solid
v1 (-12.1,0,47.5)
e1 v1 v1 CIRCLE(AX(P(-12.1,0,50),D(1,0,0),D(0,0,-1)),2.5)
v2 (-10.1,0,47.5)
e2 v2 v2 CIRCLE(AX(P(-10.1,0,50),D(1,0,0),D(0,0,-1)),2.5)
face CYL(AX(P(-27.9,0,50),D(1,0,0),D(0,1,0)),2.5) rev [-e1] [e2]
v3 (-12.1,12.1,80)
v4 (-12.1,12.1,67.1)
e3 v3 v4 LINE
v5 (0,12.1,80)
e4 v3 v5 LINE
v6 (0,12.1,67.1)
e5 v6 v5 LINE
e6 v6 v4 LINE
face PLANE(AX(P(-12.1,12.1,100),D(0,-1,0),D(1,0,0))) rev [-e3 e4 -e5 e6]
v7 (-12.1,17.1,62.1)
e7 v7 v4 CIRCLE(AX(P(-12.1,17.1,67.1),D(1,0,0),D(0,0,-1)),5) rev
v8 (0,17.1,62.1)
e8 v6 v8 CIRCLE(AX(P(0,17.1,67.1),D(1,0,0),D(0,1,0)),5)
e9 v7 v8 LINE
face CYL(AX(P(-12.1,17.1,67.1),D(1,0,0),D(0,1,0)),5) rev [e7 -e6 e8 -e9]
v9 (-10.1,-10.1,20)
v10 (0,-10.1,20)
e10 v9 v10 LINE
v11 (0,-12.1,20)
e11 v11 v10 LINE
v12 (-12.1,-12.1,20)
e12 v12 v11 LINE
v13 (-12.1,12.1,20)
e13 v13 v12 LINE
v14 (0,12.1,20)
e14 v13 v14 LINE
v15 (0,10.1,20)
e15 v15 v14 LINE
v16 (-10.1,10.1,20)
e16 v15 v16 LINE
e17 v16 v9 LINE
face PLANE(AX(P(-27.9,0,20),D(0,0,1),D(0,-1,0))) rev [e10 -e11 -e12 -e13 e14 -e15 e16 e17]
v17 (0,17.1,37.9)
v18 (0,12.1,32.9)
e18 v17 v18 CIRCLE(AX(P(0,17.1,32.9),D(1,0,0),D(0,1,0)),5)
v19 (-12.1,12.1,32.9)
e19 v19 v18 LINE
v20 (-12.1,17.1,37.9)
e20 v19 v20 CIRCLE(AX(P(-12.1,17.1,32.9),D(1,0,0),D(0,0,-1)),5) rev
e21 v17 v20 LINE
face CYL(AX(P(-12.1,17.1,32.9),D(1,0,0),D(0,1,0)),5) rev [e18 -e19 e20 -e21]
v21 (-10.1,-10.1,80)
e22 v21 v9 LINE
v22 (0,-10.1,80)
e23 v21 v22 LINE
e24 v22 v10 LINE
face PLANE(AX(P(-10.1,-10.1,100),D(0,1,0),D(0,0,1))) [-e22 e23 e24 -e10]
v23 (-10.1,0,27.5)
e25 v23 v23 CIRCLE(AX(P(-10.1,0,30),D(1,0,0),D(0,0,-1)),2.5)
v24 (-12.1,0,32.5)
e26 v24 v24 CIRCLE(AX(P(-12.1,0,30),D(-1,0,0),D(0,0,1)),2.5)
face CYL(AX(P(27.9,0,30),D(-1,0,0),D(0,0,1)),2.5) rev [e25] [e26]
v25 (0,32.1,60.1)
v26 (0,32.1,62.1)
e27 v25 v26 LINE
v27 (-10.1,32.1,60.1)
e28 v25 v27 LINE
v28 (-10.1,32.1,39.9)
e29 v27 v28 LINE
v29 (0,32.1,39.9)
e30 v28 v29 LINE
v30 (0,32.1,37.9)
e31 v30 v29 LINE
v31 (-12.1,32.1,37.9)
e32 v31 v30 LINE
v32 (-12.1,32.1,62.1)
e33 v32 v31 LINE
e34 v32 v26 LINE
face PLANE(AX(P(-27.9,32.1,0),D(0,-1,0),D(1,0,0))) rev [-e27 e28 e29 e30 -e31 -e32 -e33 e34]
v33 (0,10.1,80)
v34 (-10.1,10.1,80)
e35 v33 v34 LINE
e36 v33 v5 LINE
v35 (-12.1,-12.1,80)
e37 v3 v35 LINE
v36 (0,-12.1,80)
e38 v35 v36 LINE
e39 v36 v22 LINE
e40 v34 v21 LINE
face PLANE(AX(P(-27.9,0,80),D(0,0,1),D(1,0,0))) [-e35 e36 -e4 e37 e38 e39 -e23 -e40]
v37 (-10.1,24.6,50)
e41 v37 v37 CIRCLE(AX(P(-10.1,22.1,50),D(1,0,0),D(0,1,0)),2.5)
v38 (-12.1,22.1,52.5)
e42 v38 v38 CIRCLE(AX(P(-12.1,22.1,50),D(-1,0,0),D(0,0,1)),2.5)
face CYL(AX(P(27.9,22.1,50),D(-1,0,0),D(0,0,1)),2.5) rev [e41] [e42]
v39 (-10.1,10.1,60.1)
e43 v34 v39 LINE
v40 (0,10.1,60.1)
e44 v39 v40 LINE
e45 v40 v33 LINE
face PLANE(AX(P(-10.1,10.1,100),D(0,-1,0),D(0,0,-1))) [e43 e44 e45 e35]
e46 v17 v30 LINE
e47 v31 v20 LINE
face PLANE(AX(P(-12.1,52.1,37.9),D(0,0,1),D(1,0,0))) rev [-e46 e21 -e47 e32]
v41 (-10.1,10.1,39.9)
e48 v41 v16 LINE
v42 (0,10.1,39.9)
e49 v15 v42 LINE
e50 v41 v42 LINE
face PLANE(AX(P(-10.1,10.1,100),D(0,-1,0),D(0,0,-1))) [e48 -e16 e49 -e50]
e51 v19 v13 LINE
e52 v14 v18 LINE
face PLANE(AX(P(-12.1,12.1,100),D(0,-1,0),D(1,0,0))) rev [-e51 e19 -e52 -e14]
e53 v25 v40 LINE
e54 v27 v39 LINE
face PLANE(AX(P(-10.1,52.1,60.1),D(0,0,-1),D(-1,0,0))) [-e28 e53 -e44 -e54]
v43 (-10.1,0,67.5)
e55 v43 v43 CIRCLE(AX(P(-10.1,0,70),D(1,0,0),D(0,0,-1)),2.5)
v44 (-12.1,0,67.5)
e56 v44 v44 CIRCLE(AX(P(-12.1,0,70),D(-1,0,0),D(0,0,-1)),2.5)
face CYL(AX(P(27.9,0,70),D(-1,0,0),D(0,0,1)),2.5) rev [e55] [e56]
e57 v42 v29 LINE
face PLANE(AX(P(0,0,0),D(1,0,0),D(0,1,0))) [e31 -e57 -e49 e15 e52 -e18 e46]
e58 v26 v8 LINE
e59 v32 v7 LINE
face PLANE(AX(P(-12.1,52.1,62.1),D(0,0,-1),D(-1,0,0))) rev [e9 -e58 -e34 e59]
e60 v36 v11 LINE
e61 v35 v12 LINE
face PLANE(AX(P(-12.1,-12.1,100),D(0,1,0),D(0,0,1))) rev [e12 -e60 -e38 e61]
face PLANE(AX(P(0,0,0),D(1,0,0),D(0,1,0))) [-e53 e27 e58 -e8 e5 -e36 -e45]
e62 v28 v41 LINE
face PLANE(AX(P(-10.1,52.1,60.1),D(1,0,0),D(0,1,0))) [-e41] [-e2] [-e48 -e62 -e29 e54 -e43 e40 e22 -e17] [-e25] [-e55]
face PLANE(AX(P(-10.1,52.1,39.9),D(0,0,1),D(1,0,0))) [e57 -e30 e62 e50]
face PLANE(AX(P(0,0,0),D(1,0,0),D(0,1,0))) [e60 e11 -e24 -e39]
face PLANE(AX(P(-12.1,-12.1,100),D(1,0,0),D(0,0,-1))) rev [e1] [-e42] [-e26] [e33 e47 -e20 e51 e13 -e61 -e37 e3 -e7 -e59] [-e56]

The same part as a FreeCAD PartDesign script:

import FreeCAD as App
import Part
import Sketcher
from FreeCAD import Vector
Q = App.Units.Quantity


def edges_at(feature, points):
    """Names of the edges that pass closest to the given points."""
    edges = feature.Shape.Edges
    near = lambda p: min(range(len(edges)), key=lambda i: edges[i].distToShape(Part.Vertex(*p))[0])
    return sorted({f"Edge{near(p) + 1}" for p in points})


def add_polygon(sketch, points):
    """Adds a closed chain of lines whose ends are joined by coincident constraints."""
    first, n = sketch.GeometryCount, len(points)
    for a, b in zip(points, points[1:] + points[:1]):
        sketch.addGeometry(Part.LineSegment(App.Vector(*a, 0), App.Vector(*b, 0)), False)
    for i in range(n):
        sketch.addConstraint(Sketcher.Constraint("Coincident", first + i, 2, first + (i + 1) % n, 1))

doc = App.newDocument("Part")
params = doc.addObject("Spreadsheet::Sheet", "Params")
for row, (alias, value) in enumerate([
    ("sketch1_width", "24.2 mm"),
    ("sketch1_width2", "20.2 mm"),
    ("pad1_length", "100 mm"),
    ("sketch2_width", "24.2 mm"),
    ("sketch2_width2", "20.2 mm"),
    ("pad2_length", "40 mm"),
    ("sketch3_diameter", "5 mm"),
    ("pocket1_length", "40 mm"),
    ("sketch4_diameter", "5 mm"),
    ("pocket2_length", "40 mm"),
    ("sketch5_diameter", "5 mm"),
    ("sketch5_height", "20 mm"),
    ("sketch5_width", "24.2 mm"),
    ("pocket3_length", "40 mm"),
    ("sketch6_diameter", "5 mm"),
    ("sketch6_width", "20 mm"),
    ("sketch6_height", "24.2 mm"),
    ("pocket4_length", "40 mm"),
    ("pocket5_length", "12.1 mm"),
    ("sketch8_width", "2 mm"),
    ("sketch8_height", "20.2 mm"),
    ("pocket6_length", "10 mm"),
    ("sketch9_width", "2 mm"),
    ("sketch9_height", "20.2 mm"),
    ("pocket7_length", "0.1 mm"),
    ("fillet_radius", "5 mm"),
    ("fillet2_radius", "5 mm"),
], start=1):
    params.set(f"A{row}", alias)
    params.set(f"B{row}", "=" + value)
    params.setAlias(f"B{row}", alias)

body = doc.addObject("PartDesign::Body", "Body")

sketch1 = doc.addObject("Sketcher::SketchObject", "Sketch")
body.addObject(sketch1)
sketch1.AttachmentSupport = (doc.XY_Plane, [""])
sketch1.MapMode = "FlatFace"
add_polygon(sketch1, [(-12, 12), (-12, -12), (12, -12), (12, 12)])
add_polygon(sketch1, [(10, -10), (-10, -10), (-10, 10), (10, 10)])
sketch1.addConstraint([
    Sketcher.Constraint("Vertical", 0),
    Sketcher.Constraint("Horizontal", 1),
    Sketcher.Constraint("Vertical", 2),
    Sketcher.Constraint("Horizontal", 3),
    Sketcher.Constraint("Horizontal", 4),
    Sketcher.Constraint("Vertical", 5),
    Sketcher.Constraint("Horizontal", 6),
    Sketcher.Constraint("Vertical", 7),
    Sketcher.Constraint("Symmetric", 0, 2, 2, 2, -1, 1),
    Sketcher.Constraint("Symmetric", 4, 2, 6, 2, -1, 1),
    Sketcher.Constraint("Equal", 3, 0),
    Sketcher.Constraint("Equal", 6, 5),
    Sketcher.Constraint("DistanceX", 1, 1, 1, 2, Q("24.2 mm")),
    Sketcher.Constraint("DistanceX", 4, 2, 4, 1, Q("20.2 mm")),
])
sketch1.setExpression("Constraints[20]", "Params.sketch1_width")
sketch1.setExpression("Constraints[21]", "Params.sketch1_width2")
pad1 = doc.addObject("PartDesign::Pad", "Pad")
body.addObject(pad1)
pad1.Profile = sketch1
pad1.setExpression("Length", "Params.pad1_length")

sketch2 = doc.addObject("Sketcher::SketchObject", "Sketch001")
body.addObject(sketch2)
sketch2.AttachmentSupport = (doc.XZ_Plane, [""])
sketch2.MapMode = "FlatFace"
sketch2.AttachmentOffset = App.Placement(Vector(0, 0, -12.1), App.Rotation())
add_polygon(sketch2, [(-12, 38), (-12, 62), (12, 62), (12, 38)])
add_polygon(sketch2, [(10, 60), (-10, 60), (-10, 40), (10, 40)])
sketch2.addConstraint([
    Sketcher.Constraint("Vertical", 0),
    Sketcher.Constraint("Horizontal", 1),
    Sketcher.Constraint("Vertical", 2),
    Sketcher.Constraint("Horizontal", 3),
    Sketcher.Constraint("Horizontal", 4),
    Sketcher.Constraint("Vertical", 5),
    Sketcher.Constraint("Horizontal", 6),
    Sketcher.Constraint("Vertical", 7),
    Sketcher.Constraint("Equal", 3, 0),
    Sketcher.Constraint("Equal", 6, 5),
    Sketcher.Constraint("DistanceX", 1, 1, 1, 2, Q("24.2 mm")),
    Sketcher.Constraint("DistanceX", 4, 2, 4, 1, Q("20.2 mm")),
    Sketcher.Constraint("DistanceX", 0, 2, 4, 2, Q("2 mm")),
    Sketcher.Constraint("DistanceY", 4, 2, 0, 2, Q("2 mm")),
    Sketcher.Constraint("DistanceX", 0, 2, -1, 1, Q("12.1 mm")),
    Sketcher.Constraint("DistanceY", -1, 1, 0, 2, Q("62.1 mm")),
])
sketch2.setExpression("Constraints[18]", "Params.sketch2_width")
sketch2.setExpression("Constraints[19]", "Params.sketch2_width2")
pad2 = doc.addObject("PartDesign::Pad", "Pad001")
body.addObject(pad2)
pad2.Profile = sketch2
pad2.setExpression("Length", "Params.pad2_length")
pad2.Reversed = True

sketch3 = doc.addObject("Sketcher::SketchObject", "Sketch002")
body.addObject(sketch3)
sketch3.AttachmentSupport = (doc.YZ_Plane, [""])
sketch3.MapMode = "FlatFace"
sketch3.AttachmentOffset = App.Placement(Vector(0, 0, -12.1), App.Rotation())
sketch3.addGeometry([
    Part.Circle(Vector(0, 10, 0), Vector(0, 0, 1), 2.5),
    Part.Circle(Vector(0, 30, 0), Vector(0, 0, 1), 2.5),
    Part.Circle(Vector(0, 90, 0), Vector(0, 0, 1), 2.5),
    Part.Circle(Vector(0, 70, 0), Vector(0, 0, 1), 2.5),
    Part.Circle(Vector(42.1, 50, 0), Vector(0, 0, 1), 2.5),
    Part.Circle(Vector(22.1, 50, 0), Vector(0, 0, 1), 2.5),
], False)
sketch3.addConstraint([
    Sketcher.Constraint("Equal", 0, 1),
    Sketcher.Constraint("Equal", 1, 2),
    Sketcher.Constraint("Equal", 2, 3),
    Sketcher.Constraint("Equal", 3, 4),
    Sketcher.Constraint("Equal", 4, 5),
    Sketcher.Constraint("PointOnObject", 0, 3, -2),
    Sketcher.Constraint("PointOnObject", 1, 3, -2),
    Sketcher.Constraint("PointOnObject", 2, 3, -2),
    Sketcher.Constraint("PointOnObject", 3, 3, -2),
    Sketcher.Constraint("Horizontal", 4, 3, 5, 3),
    Sketcher.Constraint("Diameter", 0, Q("5 mm")),
    Sketcher.Constraint("DistanceY", -1, 1, 0, 3, Q("10 mm")),
    Sketcher.Constraint("DistanceY", -1, 1, 1, 3, Q("30 mm")),
    Sketcher.Constraint("DistanceY", -1, 1, 2, 3, Q("90 mm")),
    Sketcher.Constraint("DistanceY", -1, 1, 3, 3, Q("70 mm")),
    Sketcher.Constraint("DistanceY", -1, 1, 4, 3, Q("50 mm")),
    Sketcher.Constraint("DistanceX", 5, 3, 4, 3, Q("20 mm")),
    Sketcher.Constraint("DistanceX", -1, 1, 4, 3, Q("42.1 mm")),
])
sketch3.setExpression("Constraints[10]", "Params.sketch3_diameter")
pocket1 = doc.addObject("PartDesign::Pocket", "Pocket")
body.addObject(pocket1)
pocket1.Profile = sketch3
pocket1.setExpression("Length", "Params.pocket1_length")
pocket1.Reversed = True

sketch4 = doc.addObject("Sketcher::SketchObject", "Sketch003")
body.addObject(sketch4)
sketch4.AttachmentSupport = (doc.YZ_Plane, [""])
sketch4.MapMode = "FlatFace"
sketch4.AttachmentOffset = App.Placement(Vector(0, 0, 12.1), App.Rotation())
sketch4.addGeometry(Part.Circle(Vector(0, 50, 0), Vector(0, 0, 1), 2.5), False)
sketch4.addConstraint([
    Sketcher.Constraint("PointOnObject", 0, 3, -2),
    Sketcher.Constraint("Diameter", 0, Q("5 mm")),
    Sketcher.Constraint("DistanceY", -1, 1, 0, 3, Q("50 mm")),
])
sketch4.setExpression("Constraints[1]", "Params.sketch4_diameter")
pocket2 = doc.addObject("PartDesign::Pocket", "Pocket001")
body.addObject(pocket2)
pocket2.Profile = sketch4
pocket2.setExpression("Length", "Params.pocket2_length")

sketch5 = doc.addObject("Sketcher::SketchObject", "Sketch004")
body.addObject(sketch5)
sketch5.AttachmentSupport = (doc.YZ_Plane, [""])
sketch5.MapMode = "FlatFace"
sketch5.AttachmentOffset = App.Placement(Vector(0, 0, -27.9), App.Rotation())
add_polygon(sketch5, [(12.1, 20), (-12.1, 20), (-12.1, 0), (12.1, 0)])
sketch5.addGeometry(Part.Circle(Vector(0, 10, 0), Vector(0, 0, 1), 2.5), False)
add_polygon(sketch5, [(12.1, 100), (-12.1, 100), (-12.1, 80), (12.1, 80)])
sketch5.addGeometry(Part.Circle(Vector(0, 90, 0), Vector(0, 0, 1), 2.5), False)
sketch5.addConstraint([
    Sketcher.Constraint("Horizontal", 0),
    Sketcher.Constraint("Vertical", 1),
    Sketcher.Constraint("Horizontal", 2),
    Sketcher.Constraint("Vertical", 3),
    Sketcher.Constraint("Horizontal", 5),
    Sketcher.Constraint("Vertical", 6),
    Sketcher.Constraint("Horizontal", 7),
    Sketcher.Constraint("Vertical", 8),
    Sketcher.Constraint("Equal", 4, 9),
    Sketcher.Constraint("Symmetric", 1, 2, 2, 2, -1, 1),
    Sketcher.Constraint("PointOnObject", 4, 3, -2),
    Sketcher.Constraint("PointOnObject", 9, 3, -2),
    Sketcher.Constraint("Vertical", 1, 2, 5, 2),
    Sketcher.Constraint("Vertical", 3, 2, 7, 2),
    Sketcher.Constraint("Equal", 3, 6),
    Sketcher.Constraint("Diameter", 4, Q("5 mm")),
    Sketcher.Constraint("DistanceY", 1, 2, 1, 1, Q("20 mm")),
    Sketcher.Constraint("DistanceX", 0, 2, 0, 1, Q("24.2 mm")),
    Sketcher.Constraint("DistanceY", -1, 1, 4, 3, Q("10 mm")),
    Sketcher.Constraint("DistanceY", -1, 1, 9, 3, Q("90 mm")),
    Sketcher.Constraint("DistanceY", -1, 1, 5, 2, Q("100 mm")),
])
sketch5.setExpression("Constraints[23]", "Params.sketch5_diameter")
sketch5.setExpression("Constraints[24]", "Params.sketch5_height")
sketch5.setExpression("Constraints[25]", "Params.sketch5_width")
pocket3 = doc.addObject("PartDesign::Pocket", "Pocket002")
body.addObject(pocket3)
pocket3.Profile = sketch5
pocket3.setExpression("Length", "Params.pocket3_length")
pocket3.Reversed = True

sketch6 = doc.addObject("Sketcher::SketchObject", "Sketch005")
body.addObject(sketch6)
sketch6.AttachmentSupport = (doc.YZ_Plane, [""])
sketch6.MapMode = "FlatFace"
sketch6.AttachmentOffset = App.Placement(Vector(0, 0, -27.9), App.Rotation())
add_polygon(sketch6, [(52.1, 62.1), (32.1, 62.1), (32.1, 37.9), (52.1, 37.9)])
sketch6.addGeometry(Part.Circle(Vector(42.1, 50, 0), Vector(0, 0, 1), 2.5), False)
sketch6.addConstraint([
    Sketcher.Constraint("Horizontal", 0),
    Sketcher.Constraint("Vertical", 1),
    Sketcher.Constraint("Horizontal", 2),
    Sketcher.Constraint("Vertical", 3),
    Sketcher.Constraint("Diameter", 4, Q("5 mm")),
    Sketcher.Constraint("DistanceX", 0, 2, 0, 1, Q("20 mm")),
    Sketcher.Constraint("DistanceY", 1, 2, 1, 1, Q("24.2 mm")),
    Sketcher.Constraint("DistanceY", -1, 1, 4, 3, Q("50 mm")),
    Sketcher.Constraint("DistanceX", 0, 2, 4, 3, Q("10 mm")),
    Sketcher.Constraint("DistanceX", -1, 1, 4, 3, Q("42.1 mm")),
    Sketcher.Constraint("DistanceY", -1, 1, 0, 2, Q("62.1 mm")),
])
sketch6.setExpression("Constraints[8]", "Params.sketch6_diameter")
sketch6.setExpression("Constraints[9]", "Params.sketch6_width")
sketch6.setExpression("Constraints[10]", "Params.sketch6_height")
pocket4 = doc.addObject("PartDesign::Pocket", "Pocket003")
body.addObject(pocket4)
pocket4.Profile = sketch6
pocket4.setExpression("Length", "Params.pocket4_length")
pocket4.Reversed = True

sketch7 = doc.addObject("Sketcher::SketchObject", "Sketch006")
body.addObject(sketch7)
sketch7.AttachmentSupport = (doc.YZ_Plane, [""])
sketch7.MapMode = "FlatFace"
sketch7.AttachmentOffset = App.Placement(Vector(0, 0, 12.1), App.Rotation())
add_polygon(sketch7, [(33, 86), (-16, 86), (-16, 16), (33, 16)])
sketch7.addConstraint([
    Sketcher.Constraint("Horizontal", 0),
    Sketcher.Constraint("Vertical", 1),
    Sketcher.Constraint("Horizontal", 2),
    Sketcher.Constraint("Vertical", 3),
    Sketcher.Constraint("DistanceX", -1, 1, 2, 2, Q("32.932998 mm")),
    Sketcher.Constraint("DistanceX", 0, 2, 0, 1, Q("48.665956 mm")),
    Sketcher.Constraint("DistanceY", 1, 2, 1, 1, Q("69.821202 mm")),
    Sketcher.Constraint("DistanceY", -1, 1, 0, 2, Q("85.910586 mm")),
])
pocket5 = doc.addObject("PartDesign::Pocket", "Pocket004")
body.addObject(pocket5)
pocket5.Profile = sketch7
pocket5.setExpression("Length", "Params.pocket5_length")

sketch8 = doc.addObject("Sketcher::SketchObject", "Sketch007")
body.addObject(sketch8)
sketch8.AttachmentSupport = (doc.YZ_Plane, [""])
sketch8.MapMode = "FlatFace"
add_polygon(sketch8, [(12.1, 60.1), (10.1, 60.1), (10.1, 39.9), (12.1, 39.9)])
sketch8.addConstraint([
    Sketcher.Constraint("Horizontal", 0),
    Sketcher.Constraint("Vertical", 1),
    Sketcher.Constraint("Horizontal", 2),
    Sketcher.Constraint("Vertical", 3),
    Sketcher.Constraint("DistanceX", 0, 2, 0, 1, Q("2 mm")),
    Sketcher.Constraint("DistanceY", 1, 2, 1, 1, Q("20.2 mm")),
    Sketcher.Constraint("DistanceX", -1, 1, 0, 2, Q("10.1 mm")),
    Sketcher.Constraint("DistanceY", -1, 1, 0, 2, Q("60.1 mm")),
])
sketch8.setExpression("Constraints[8]", "Params.sketch8_width")
sketch8.setExpression("Constraints[9]", "Params.sketch8_height")
pocket6 = doc.addObject("PartDesign::Pocket", "Pocket005")
body.addObject(pocket6)
pocket6.Profile = sketch8
pocket6.setExpression("Length", "Params.pocket6_length")

sketch9 = doc.addObject("Sketcher::SketchObject", "Sketch008")
body.addObject(sketch9)
sketch9.AttachmentSupport = (doc.YZ_Plane, [""])
sketch9.MapMode = "FlatFace"
sketch9.AttachmentOffset = App.Placement(Vector(0, 0, -10), App.Rotation())
add_polygon(sketch9, [(12.1, 60.1), (10.1, 60.1), (10.1, 39.9), (12.1, 39.9)])
sketch9.addConstraint([
    Sketcher.Constraint("Horizontal", 0),
    Sketcher.Constraint("Vertical", 1),
    Sketcher.Constraint("Horizontal", 2),
    Sketcher.Constraint("Vertical", 3),
    Sketcher.Constraint("DistanceX", 0, 2, 0, 1, Q("2 mm")),
    Sketcher.Constraint("DistanceY", 1, 2, 1, 1, Q("20.2 mm")),
    Sketcher.Constraint("DistanceX", -1, 1, 0, 2, Q("10.1 mm")),
    Sketcher.Constraint("DistanceY", -1, 1, 0, 2, Q("60.1 mm")),
])
sketch9.setExpression("Constraints[8]", "Params.sketch9_width")
sketch9.setExpression("Constraints[9]", "Params.sketch9_height")
pocket7 = doc.addObject("PartDesign::Pocket", "Pocket006")
body.addObject(pocket7)
pocket7.Profile = sketch9
pocket7.setExpression("Length", "Params.pocket7_length")
doc.recompute()

fillet = doc.addObject("PartDesign::Fillet", "Fillet")
body.addObject(fillet)
fillet.Base = (pocket7, edges_at(pocket7, [(-6.05, 12.1, 37.9)]))
fillet.setExpression("Radius", "Params.fillet_radius")
doc.recompute()

fillet2 = doc.addObject("PartDesign::Fillet", "Fillet001")
body.addObject(fillet2)
fillet2.Base = (fillet, edges_at(fillet, [(-6.05, 12.1, 62.1)]))
fillet2.setExpression("Radius", "Params.fillet2_radius")

doc.recompute()
